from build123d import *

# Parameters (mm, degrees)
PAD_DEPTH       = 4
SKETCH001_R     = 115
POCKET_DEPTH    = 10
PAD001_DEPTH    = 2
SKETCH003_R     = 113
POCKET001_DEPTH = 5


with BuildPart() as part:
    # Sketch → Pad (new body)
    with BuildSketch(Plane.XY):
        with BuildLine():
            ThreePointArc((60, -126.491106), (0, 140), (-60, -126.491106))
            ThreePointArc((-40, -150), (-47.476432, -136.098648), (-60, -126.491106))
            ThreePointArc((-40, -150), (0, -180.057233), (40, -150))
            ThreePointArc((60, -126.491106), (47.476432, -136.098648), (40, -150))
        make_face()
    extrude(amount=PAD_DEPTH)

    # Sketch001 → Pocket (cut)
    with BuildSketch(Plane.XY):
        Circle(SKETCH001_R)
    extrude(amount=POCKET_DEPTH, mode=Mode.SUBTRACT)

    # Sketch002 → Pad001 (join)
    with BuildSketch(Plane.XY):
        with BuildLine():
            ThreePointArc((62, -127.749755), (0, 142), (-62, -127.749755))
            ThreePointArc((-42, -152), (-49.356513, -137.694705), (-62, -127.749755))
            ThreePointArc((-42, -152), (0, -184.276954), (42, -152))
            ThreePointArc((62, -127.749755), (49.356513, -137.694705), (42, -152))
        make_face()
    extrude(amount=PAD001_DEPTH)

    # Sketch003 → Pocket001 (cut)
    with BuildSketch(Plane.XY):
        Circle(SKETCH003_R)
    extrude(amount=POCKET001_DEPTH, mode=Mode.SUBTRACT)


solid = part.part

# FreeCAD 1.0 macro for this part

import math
import FreeCAD as App
import Part
import Sketcher

V = App.Vector

doc = App.newDocument("Part")
params = doc.addObject("Spreadsheet::Sheet", "Params")
for row, (alias, value) in enumerate([
    ("sketch1_radius", "140 mm"),
    ("pad1_length", "4 mm"),
    ("sketch2_diameter", "230 mm"),
    ("pocket1_length", "10 mm"),
    ("sketch3_radius", "142 mm"),
    ("pad2_length", "2 mm"),
    ("sketch4_diameter", "226 mm"),
    ("pocket2_length", "5 mm"),
], start=1):
    params.set(f"A{row}", alias)
    params.set(f"B{row}", "=" + value)
    params.setAlias(f"B{row}", alias)

body = doc.addObject("PartDesign::Body", "Body")

# Sketch on XY plane
sketch1 = doc.addObject("Sketcher::SketchObject", "Sketch")
body.addObject(sketch1)
sketch1.AttachmentSupport = (doc.XY_Plane, [""])
sketch1.MapMode = "FlatFace"
sketch1.addGeometry(Part.ArcOfCircle(Part.Circle(V(0, 0, 0), V(0, 0, 1), 140), math.radians(-65), math.radians(245)), False)
sketch1.addGeometry(Part.ArcOfCircle(Part.Circle(V(-76, -160, 0), V(0, 0, 1), 38), math.radians(16), math.radians(65)), False)
sketch1.addGeometry(Part.ArcOfCircle(Part.Circle(V(0, -138, 0), V(0, 0, 1), 42), math.radians(-164), math.radians(-16)), False)
sketch1.addGeometry(Part.ArcOfCircle(Part.Circle(V(76, -160, 0), V(0, 0, 1), 38), math.radians(115), math.radians(164)), False)
sketch1.addConstraint(Sketcher.Constraint("Tangent", 0, 2, 1, 2))
sketch1.addConstraint(Sketcher.Constraint("Tangent", 1, 1, 2, 1))
sketch1.addConstraint(Sketcher.Constraint("Tangent", 2, 2, 3, 2))
sketch1.addConstraint(Sketcher.Constraint("Tangent", 3, 1, 0, 1))
sketch1.addConstraint(Sketcher.Constraint("Coincident", 0, 3, -1, 1))
sketch1.addConstraint(Sketcher.Constraint("Equal", 1, 3))
sketch1.addConstraint(Sketcher.Constraint("PointOnObject", 2, 3, -2))
sketch1.addConstraint(Sketcher.Constraint("Radius", 0, 140.0))
sketch1.addConstraint(Sketcher.Constraint("DistanceX", 0, 2, -1, 1, 60.0))
sketch1.addConstraint(Sketcher.Constraint("DistanceX", 1, 1, -1, 1, 40.0))
sketch1.addConstraint(Sketcher.Constraint("DistanceY", 1, 1, -1, 1, 150.0))
sketch1.setExpression("Constraints[7]", "Params.sketch1_radius")
pad1 = doc.addObject("PartDesign::Pad", "Pad")
body.addObject(pad1)
pad1.Profile = sketch1
pad1.setExpression("Length", "Params.pad1_length")

# Sketch on XY plane
sketch2 = doc.addObject("Sketcher::SketchObject", "Sketch001")
body.addObject(sketch2)
sketch2.AttachmentSupport = (doc.XY_Plane, [""])
sketch2.MapMode = "FlatFace"
sketch2.addGeometry(Part.Circle(V(0, 0, 0), V(0, 0, 1), 115), False)
sketch2.addConstraint(Sketcher.Constraint("Coincident", 0, 3, -1, 1))
sketch2.addConstraint(Sketcher.Constraint("Diameter", 0, 230.0))
sketch2.setExpression("Constraints[1]", "Params.sketch2_diameter")
pocket1 = doc.addObject("PartDesign::Pocket", "Pocket")
body.addObject(pocket1)
pocket1.Profile = sketch2
pocket1.setExpression("Length", "Params.pocket1_length")
pocket1.Reversed = True

# Sketch on XY plane
sketch3 = doc.addObject("Sketcher::SketchObject", "Sketch002")
body.addObject(sketch3)
sketch3.AttachmentSupport = (doc.XY_Plane, [""])
sketch3.MapMode = "FlatFace"
sketch3.addGeometry(Part.ArcOfCircle(Part.Circle(V(0, 0, 0), V(0, 0, 1), 142), math.radians(-64), math.radians(244)), False)
sketch3.addGeometry(Part.ArcOfCircle(Part.Circle(V(-78, -162, 0), V(0, 0, 1), 38), math.radians(15), math.radians(64)), False)
sketch3.addGeometry(Part.ArcOfCircle(Part.Circle(V(0, -141, 0), V(0, 0, 1), 43), math.radians(-165), math.radians(-15)), False)
sketch3.addGeometry(Part.ArcOfCircle(Part.Circle(V(78, -162, 0), V(0, 0, 1), 38), math.radians(116), math.radians(165)), False)
sketch3.addConstraint(Sketcher.Constraint("Tangent", 0, 2, 1, 2))
sketch3.addConstraint(Sketcher.Constraint("Tangent", 1, 1, 2, 1))
sketch3.addConstraint(Sketcher.Constraint("Tangent", 2, 2, 3, 2))
sketch3.addConstraint(Sketcher.Constraint("Tangent", 3, 1, 0, 1))
sketch3.addConstraint(Sketcher.Constraint("Coincident", 0, 3, -1, 1))
sketch3.addConstraint(Sketcher.Constraint("Equal", 1, 3))
sketch3.addConstraint(Sketcher.Constraint("PointOnObject", 2, 3, -2))
sketch3.addConstraint(Sketcher.Constraint("Radius", 0, 142.0))
sketch3.addConstraint(Sketcher.Constraint("DistanceX", 0, 2, -1, 1, 62.0))
sketch3.addConstraint(Sketcher.Constraint("DistanceX", 1, 1, -1, 1, 42.0))
sketch3.addConstraint(Sketcher.Constraint("DistanceY", 1, 1, -1, 1, 152.0))
sketch3.setExpression("Constraints[7]", "Params.sketch3_radius")
pad2 = doc.addObject("PartDesign::Pad", "Pad001")
body.addObject(pad2)
pad2.Profile = sketch3
pad2.setExpression("Length", "Params.pad2_length")

# Sketch on XY plane
sketch4 = doc.addObject("Sketcher::SketchObject", "Sketch003")
body.addObject(sketch4)
sketch4.AttachmentSupport = (doc.XY_Plane, [""])
sketch4.MapMode = "FlatFace"
sketch4.addGeometry(Part.Circle(V(0, 0, 0), V(0, 0, 1), 113), False)
sketch4.addConstraint(Sketcher.Constraint("Coincident", 0, 3, -1, 1))
sketch4.addConstraint(Sketcher.Constraint("Diameter", 0, 226.0))
sketch4.setExpression("Constraints[1]", "Params.sketch4_diameter")
pocket2 = doc.addObject("PartDesign::Pocket", "Pocket001")
body.addObject(pocket2)
pocket2.Profile = sketch4
pocket2.setExpression("Length", "Params.pocket2_length")
pocket2.Reversed = True

doc.recompute()
